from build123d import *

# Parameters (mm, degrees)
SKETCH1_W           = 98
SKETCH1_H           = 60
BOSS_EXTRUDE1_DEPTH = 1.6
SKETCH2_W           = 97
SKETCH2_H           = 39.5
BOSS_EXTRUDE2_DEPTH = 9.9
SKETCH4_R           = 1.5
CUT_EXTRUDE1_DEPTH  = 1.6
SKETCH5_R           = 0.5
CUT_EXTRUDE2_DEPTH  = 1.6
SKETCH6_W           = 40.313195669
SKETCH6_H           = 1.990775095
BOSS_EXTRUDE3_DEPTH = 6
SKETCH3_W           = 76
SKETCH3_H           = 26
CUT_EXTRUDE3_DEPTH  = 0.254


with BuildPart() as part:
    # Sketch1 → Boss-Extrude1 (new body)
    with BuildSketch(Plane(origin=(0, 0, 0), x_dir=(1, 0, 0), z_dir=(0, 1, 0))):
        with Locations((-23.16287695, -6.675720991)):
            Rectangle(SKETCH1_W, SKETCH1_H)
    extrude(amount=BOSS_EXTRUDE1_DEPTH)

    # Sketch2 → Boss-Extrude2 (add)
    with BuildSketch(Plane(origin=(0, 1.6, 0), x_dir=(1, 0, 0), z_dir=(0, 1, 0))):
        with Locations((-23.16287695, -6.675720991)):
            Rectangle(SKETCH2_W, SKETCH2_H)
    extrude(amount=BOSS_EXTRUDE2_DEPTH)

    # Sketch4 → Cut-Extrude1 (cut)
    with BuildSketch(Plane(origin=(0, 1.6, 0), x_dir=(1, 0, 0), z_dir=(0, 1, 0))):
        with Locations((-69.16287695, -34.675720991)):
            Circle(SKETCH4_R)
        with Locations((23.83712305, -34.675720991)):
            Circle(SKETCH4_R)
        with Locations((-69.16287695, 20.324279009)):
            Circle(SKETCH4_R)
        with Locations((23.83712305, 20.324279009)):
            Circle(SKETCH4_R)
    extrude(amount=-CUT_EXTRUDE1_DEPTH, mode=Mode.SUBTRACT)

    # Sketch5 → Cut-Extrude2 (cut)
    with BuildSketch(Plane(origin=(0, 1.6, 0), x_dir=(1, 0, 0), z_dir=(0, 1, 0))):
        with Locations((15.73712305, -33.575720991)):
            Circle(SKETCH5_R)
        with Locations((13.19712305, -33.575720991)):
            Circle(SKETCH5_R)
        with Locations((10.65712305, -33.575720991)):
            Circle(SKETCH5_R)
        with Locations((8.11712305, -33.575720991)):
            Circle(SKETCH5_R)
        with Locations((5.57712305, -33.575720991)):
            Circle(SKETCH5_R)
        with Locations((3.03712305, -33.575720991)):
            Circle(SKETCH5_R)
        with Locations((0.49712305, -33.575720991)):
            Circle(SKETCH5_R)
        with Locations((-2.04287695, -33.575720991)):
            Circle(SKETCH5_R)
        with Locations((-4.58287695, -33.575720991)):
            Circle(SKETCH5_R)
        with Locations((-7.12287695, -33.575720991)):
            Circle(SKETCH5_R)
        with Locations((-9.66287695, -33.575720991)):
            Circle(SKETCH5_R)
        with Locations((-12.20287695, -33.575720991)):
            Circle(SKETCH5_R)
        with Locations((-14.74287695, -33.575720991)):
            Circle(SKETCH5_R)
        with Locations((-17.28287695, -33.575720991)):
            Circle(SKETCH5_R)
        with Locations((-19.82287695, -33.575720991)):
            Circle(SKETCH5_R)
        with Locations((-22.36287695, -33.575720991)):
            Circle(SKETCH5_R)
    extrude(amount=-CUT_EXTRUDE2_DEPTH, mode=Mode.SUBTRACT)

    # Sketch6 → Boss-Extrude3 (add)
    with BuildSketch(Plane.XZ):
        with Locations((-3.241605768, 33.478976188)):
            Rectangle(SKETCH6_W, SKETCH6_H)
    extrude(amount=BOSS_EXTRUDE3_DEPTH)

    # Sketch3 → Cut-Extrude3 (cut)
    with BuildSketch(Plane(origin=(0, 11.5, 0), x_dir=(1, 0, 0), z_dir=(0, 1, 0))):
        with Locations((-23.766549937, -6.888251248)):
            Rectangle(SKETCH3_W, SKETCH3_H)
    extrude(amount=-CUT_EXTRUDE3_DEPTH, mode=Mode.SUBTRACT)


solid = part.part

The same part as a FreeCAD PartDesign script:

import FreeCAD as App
import Part
import Sketcher
from FreeCAD import Vector
Q = App.Units.Quantity

doc = App.newDocument("Part")
body = doc.addObject("PartDesign::Body", "Body")

# Sketch on XZ plane
sketch1 = body.newObject("Sketcher::SketchObject", "Sketch")
sketch1.AttachmentSupport = (doc.getObject("XZ_Plane"), [""])
sketch1.MapMode = "FlatFace"
sketch1.addGeometry(Part.LineSegment(Vector(-72, -23, 0), Vector(-72, 37, 0)), False)
sketch1.addGeometry(Part.LineSegment(Vector(-72, 37, 0), Vector(26, 37, 0)), False)
sketch1.addGeometry(Part.LineSegment(Vector(26, 37, 0), Vector(26, -23, 0)), False)
sketch1.addGeometry(Part.LineSegment(Vector(26, -23, 0), Vector(-72, -23, 0)), False)
sketch1.addConstraint(Sketcher.Constraint("Coincident", 0, 2, 1, 1))
sketch1.addConstraint(Sketcher.Constraint("Coincident", 1, 2, 2, 1))
sketch1.addConstraint(Sketcher.Constraint("Coincident", 2, 2, 3, 1))
sketch1.addConstraint(Sketcher.Constraint("Coincident", 3, 2, 0, 1))
sketch1.addConstraint(Sketcher.Constraint("Vertical", 0))
sketch1.addConstraint(Sketcher.Constraint("Horizontal", 1))
sketch1.addConstraint(Sketcher.Constraint("Vertical", 2))
sketch1.addConstraint(Sketcher.Constraint("Horizontal", 3))
sketch1.addConstraint(Sketcher.Constraint("DistanceX", 1, 1, 1, 2, Q("98 mm")))
sketch1.addConstraint(Sketcher.Constraint("DistanceY", 0, 1, 0, 2, Q("60 mm")))
sketch1.addConstraint(Sketcher.Constraint("DistanceY", -1, 1, 0, 2, Q("36.675721 mm")))
sketch1.addConstraint(Sketcher.Constraint("DistanceX", 0, 2, -1, 1, Q("72.162877 mm")))
pad1 = body.newObject("PartDesign::Pad", "Pad")
pad1.Profile = sketch1
pad1.Length = 1.6
pad1.Reversed = True

# Sketch on XZ plane
sketch2 = body.newObject("Sketcher::SketchObject", "Sketch001")
sketch2.AttachmentSupport = (doc.getObject("XZ_Plane"), [""])
sketch2.MapMode = "FlatFace"
sketch2.AttachmentOffset = App.Placement(Vector(0, 0, -1.6), App.Rotation())
sketch2.addGeometry(Part.LineSegment(Vector(-72, -13, 0), Vector(-72, 26, 0)), False)
sketch2.addGeometry(Part.LineSegment(Vector(-72, 26, 0), Vector(25, 26, 0)), False)
sketch2.addGeometry(Part.LineSegment(Vector(25, 26, 0), Vector(25, -13, 0)), False)
sketch2.addGeometry(Part.LineSegment(Vector(25, -13, 0), Vector(-72, -13, 0)), False)
sketch2.addConstraint(Sketcher.Constraint("Coincident", 0, 2, 1, 1))
sketch2.addConstraint(Sketcher.Constraint("Coincident", 1, 2, 2, 1))
sketch2.addConstraint(Sketcher.Constraint("Coincident", 2, 2, 3, 1))
sketch2.addConstraint(Sketcher.Constraint("Coincident", 3, 2, 0, 1))
sketch2.addConstraint(Sketcher.Constraint("Vertical", 0))
sketch2.addConstraint(Sketcher.Constraint("Horizontal", 1))
sketch2.addConstraint(Sketcher.Constraint("Vertical", 2))
sketch2.addConstraint(Sketcher.Constraint("Horizontal", 3))
sketch2.addConstraint(Sketcher.Constraint("DistanceX", 1, 1, 1, 2, Q("97 mm")))
sketch2.addConstraint(Sketcher.Constraint("DistanceY", 0, 1, 0, 2, Q("39.5 mm")))
sketch2.addConstraint(Sketcher.Constraint("DistanceY", -1, 1, 0, 2, Q("26.425721 mm")))
sketch2.addConstraint(Sketcher.Constraint("DistanceX", 0, 2, -1, 1, Q("71.662877 mm")))
pad2 = body.newObject("PartDesign::Pad", "Pad001")
pad2.Profile = sketch2
pad2.Length = 9.9
pad2.Reversed = True

# Sketch on XZ plane
sketch3 = body.newObject("Sketcher::SketchObject", "Sketch002")
sketch3.AttachmentSupport = (doc.getObject("XZ_Plane"), [""])
sketch3.MapMode = "FlatFace"
sketch3.AttachmentOffset = App.Placement(Vector(0, 0, -1.6), App.Rotation())
sketch3.addGeometry(Part.Circle(Vector(-69.2, 34.7, 0), Vector(0, 0, 1), 1.5), False)
sketch3.addGeometry(Part.Circle(Vector(23.8, 34.7, 0), Vector(0, 0, 1), 1.5), False)
sketch3.addGeometry(Part.Circle(Vector(-69.2, -20.3, 0), Vector(0, 0, 1), 1.5), False)
sketch3.addGeometry(Part.Circle(Vector(23.8, -20.3, 0), Vector(0, 0, 1), 1.5), False)
sketch3.addConstraint(Sketcher.Constraint("Equal", 0, 1))
sketch3.addConstraint(Sketcher.Constraint("Equal", 1, 2))
sketch3.addConstraint(Sketcher.Constraint("Equal", 2, 3))
sketch3.addConstraint(Sketcher.Constraint("Horizontal", 0, 3, 1, 3))
sketch3.addConstraint(Sketcher.Constraint("Horizontal", 2, 3, 3, 3))
sketch3.addConstraint(Sketcher.Constraint("Vertical", 0, 3, 2, 3))
sketch3.addConstraint(Sketcher.Constraint("Vertical", 1, 3, 3, 3))
sketch3.addConstraint(Sketcher.Constraint("Diameter", 0, Q("3 mm")))
sketch3.addConstraint(Sketcher.Constraint("DistanceX", 0, 3, 1, 3, Q("93 mm")))
sketch3.addConstraint(Sketcher.Constraint("DistanceY", 2, 3, 0, 3, Q("55 mm")))
sketch3.addConstraint(Sketcher.Constraint("DistanceY", -1, 1, 0, 3, Q("34.675721 mm")))
sketch3.addConstraint(Sketcher.Constraint("DistanceX", 0, 3, -1, 1, Q("69.162877 mm")))
pocket1 = body.newObject("PartDesign::Pocket", "Pocket")
pocket1.Profile = sketch3
pocket1.Length = 1.6
pocket1.Reversed = True

# Sketch on XZ plane
sketch4 = body.newObject("Sketcher::SketchObject", "Sketch003")
sketch4.AttachmentSupport = (doc.getObject("XZ_Plane"), [""])
sketch4.MapMode = "FlatFace"
sketch4.AttachmentOffset = App.Placement(Vector(0, 0, -1.6), App.Rotation())
sketch4.addGeometry(Part.Circle(Vector(15.7, 33.6, 0), Vector(0, 0, 1), 0.5), False)
sketch4.addGeometry(Part.Circle(Vector(13.2, 33.6, 0), Vector(0, 0, 1), 0.5), False)
sketch4.addGeometry(Part.Circle(Vector(10.7, 33.6, 0), Vector(0, 0, 1), 0.5), False)
sketch4.addGeometry(Part.Circle(Vector(8.1, 33.6, 0), Vector(0, 0, 1), 0.5), False)
sketch4.addGeometry(Part.Circle(Vector(5.6, 33.6, 0), Vector(0, 0, 1), 0.5), False)
sketch4.addGeometry(Part.Circle(Vector(3, 33.6, 0), Vector(0, 0, 1), 0.5), False)
sketch4.addGeometry(Part.Circle(Vector(0.5, 33.6, 0), Vector(0, 0, 1), 0.5), False)
sketch4.addGeometry(Part.Circle(Vector(-2, 33.6, 0), Vector(0, 0, 1), 0.5), False)
sketch4.addGeometry(Part.Circle(Vector(-4.6, 33.6, 0), Vector(0, 0, 1), 0.5), False)
sketch4.addGeometry(Part.Circle(Vector(-7.1, 33.6, 0), Vector(0, 0, 1), 0.5), False)
sketch4.addGeometry(Part.Circle(Vector(-9.7, 33.6, 0), Vector(0, 0, 1), 0.5), False)
sketch4.addGeometry(Part.Circle(Vector(-12.2, 33.6, 0), Vector(0, 0, 1), 0.5), False)
sketch4.addGeometry(Part.Circle(Vector(-14.7, 33.6, 0), Vector(0, 0, 1), 0.5), False)
sketch4.addGeometry(Part.Circle(Vector(-17.3, 33.6, 0), Vector(0, 0, 1), 0.5), False)
sketch4.addGeometry(Part.Circle(Vector(-19.8, 33.6, 0), Vector(0, 0, 1), 0.5), False)
sketch4.addGeometry(Part.Circle(Vector(-22.4, 33.6, 0), Vector(0, 0, 1), 0.5), False)
sketch4.addConstraint(Sketcher.Constraint("Equal", 0, 1))
sketch4.addConstraint(Sketcher.Constraint("Equal", 1, 2))
sketch4.addConstraint(Sketcher.Constraint("Equal", 2, 3))
sketch4.addConstraint(Sketcher.Constraint("Equal", 3, 4))
sketch4.addConstraint(Sketcher.Constraint("Equal", 4, 5))
sketch4.addConstraint(Sketcher.Constraint("Equal", 5, 6))
sketch4.addConstraint(Sketcher.Constraint("Equal", 6, 7))
sketch4.addConstraint(Sketcher.Constraint("Equal", 7, 8))
sketch4.addConstraint(Sketcher.Constraint("Equal", 8, 9))
sketch4.addConstraint(Sketcher.Constraint("Equal", 9, 10))
sketch4.addConstraint(Sketcher.Constraint("Equal", 10, 11))
sketch4.addConstraint(Sketcher.Constraint("Equal", 11, 12))
sketch4.addConstraint(Sketcher.Constraint("Equal", 12, 13))
sketch4.addConstraint(Sketcher.Constraint("Equal", 13, 14))
sketch4.addConstraint(Sketcher.Constraint("Equal", 14, 15))
sketch4.addConstraint(Sketcher.Constraint("Horizontal", 0, 3, 1, 3))
sketch4.addConstraint(Sketcher.Constraint("Horizontal", 1, 3, 2, 3))
sketch4.addConstraint(Sketcher.Constraint("Horizontal", 2, 3, 3, 3))
sketch4.addConstraint(Sketcher.Constraint("Horizontal", 3, 3, 4, 3))
sketch4.addConstraint(Sketcher.Constraint("Horizontal", 4, 3, 5, 3))
sketch4.addConstraint(Sketcher.Constraint("Horizontal", 5, 3, 6, 3))
sketch4.addConstraint(Sketcher.Constraint("Horizontal", 6, 3, 7, 3))
sketch4.addConstraint(Sketcher.Constraint("Horizontal", 7, 3, 8, 3))
sketch4.addConstraint(Sketcher.Constraint("Horizontal", 8, 3, 9, 3))
sketch4.addConstraint(Sketcher.Constraint("Horizontal", 9, 3, 10, 3))
sketch4.addConstraint(Sketcher.Constraint("Horizontal", 10, 3, 11, 3))
sketch4.addConstraint(Sketcher.Constraint("Horizontal", 11, 3, 12, 3))
sketch4.addConstraint(Sketcher.Constraint("Horizontal", 12, 3, 13, 3))
sketch4.addConstraint(Sketcher.Constraint("Horizontal", 13, 3, 14, 3))
sketch4.addConstraint(Sketcher.Constraint("Horizontal", 14, 3, 15, 3))
sketch4.addConstraint(Sketcher.Constraint("Diameter", 0, Q("1 mm")))
sketch4.addConstraint(Sketcher.Constraint("DistanceX", 5, 3, 0, 3, Q("12.7 mm")))
sketch4.addConstraint(Sketcher.Constraint("DistanceX", 6, 3, 1, 3, Q("12.7 mm")))
sketch4.addConstraint(Sketcher.Constraint("DistanceX", 7, 3, 2, 3, Q("12.7 mm")))
sketch4.addConstraint(Sketcher.Constraint("DistanceX", 8, 3, 3, 3, Q("12.7 mm")))
sketch4.addConstraint(Sketcher.Constraint("DistanceX", 9, 3, 4, 3, Q("12.7 mm")))
sketch4.addConstraint(Sketcher.Constraint("DistanceX", 10, 3, 5, 3, Q("12.7 mm")))
sketch4.addConstraint(Sketcher.Constraint("DistanceX", 11, 3, 6, 3, Q("12.7 mm")))
sketch4.addConstraint(Sketcher.Constraint("DistanceX", 12, 3, 7, 3, Q("12.7 mm")))
sketch4.addConstraint(Sketcher.Constraint("DistanceX", 13, 3, 8, 3, Q("12.7 mm")))
sketch4.addConstraint(Sketcher.Constraint("DistanceX", 14, 3, 9, 3, Q("12.7 mm")))
sketch4.addConstraint(Sketcher.Constraint("DistanceX", 15, 3, 10, 3, Q("12.7 mm")))
sketch4.addConstraint(Sketcher.Constraint("DistanceX", 1, 3, 0, 3, Q("2.54 mm")))
sketch4.addConstraint(Sketcher.Constraint("DistanceX", 2, 3, 1, 3, Q("2.54 mm")))
sketch4.addConstraint(Sketcher.Constraint("DistanceX", 3, 3, 2, 3, Q("2.54 mm")))
sketch4.addConstraint(Sketcher.Constraint("DistanceX", 4, 3, 3, 3, Q("2.54 mm")))
sketch4.addConstraint(Sketcher.Constraint("DistanceY", -1, 1, 0, 3, Q("33.575721 mm")))
sketch4.addConstraint(Sketcher.Constraint("DistanceX", -1, 1, 0, 3, Q("15.737123 mm")))
pocket2 = body.newObject("PartDesign::Pocket", "Pocket001")
pocket2.Profile = sketch4
pocket2.Length = 1.6
pocket2.Reversed = True

# Sketch on XZ plane
sketch5 = body.newObject("Sketcher::SketchObject", "Sketch004")
sketch5.AttachmentSupport = (doc.getObject("XZ_Plane"), [""])
sketch5.MapMode = "FlatFace"
sketch5.addGeometry(Part.LineSegment(Vector(-23.4, 34.5, 0), Vector(-23.4, 32.5, 0)), False)
sketch5.addGeometry(Part.LineSegment(Vector(-23.4, 32.5, 0), Vector(16.9, 32.5, 0)), False)
sketch5.addGeometry(Part.LineSegment(Vector(16.9, 32.5, 0), Vector(16.9, 34.5, 0)), False)
sketch5.addGeometry(Part.LineSegment(Vector(16.9, 34.5, 0), Vector(-23.4, 34.5, 0)), False)
sketch5.addConstraint(Sketcher.Constraint("Coincident", 0, 2, 1, 1))
sketch5.addConstraint(Sketcher.Constraint("Coincident", 1, 2, 2, 1))
sketch5.addConstraint(Sketcher.Constraint("Coincident", 2, 2, 3, 1))
sketch5.addConstraint(Sketcher.Constraint("Coincident", 3, 2, 0, 1))
sketch5.addConstraint(Sketcher.Constraint("Vertical", 0))
sketch5.addConstraint(Sketcher.Constraint("Horizontal", 1))
sketch5.addConstraint(Sketcher.Constraint("Vertical", 2))
sketch5.addConstraint(Sketcher.Constraint("Horizontal", 3))
sketch5.addConstraint(Sketcher.Constraint("DistanceX", 1, 1, 1, 2, Q("40.313196 mm")))
sketch5.addConstraint(Sketcher.Constraint("DistanceY", 0, 2, 0, 1, Q("1.990775 mm")))
sketch5.addConstraint(Sketcher.Constraint("DistanceY", -1, 1, 0, 2, Q("32.483589 mm")))
sketch5.addConstraint(Sketcher.Constraint("DistanceX", 0, 2, -1, 1, Q("23.398204 mm")))
pad3 = body.newObject("PartDesign::Pad", "Pad002")
pad3.Profile = sketch5
pad3.Length = 6

# Sketch on XZ plane
sketch6 = body.newObject("Sketcher::SketchObject", "Sketch005")
sketch6.AttachmentSupport = (doc.getObject("XZ_Plane"), [""])
sketch6.MapMode = "FlatFace"
sketch6.AttachmentOffset = App.Placement(Vector(0, 0, -11.5), App.Rotation())
sketch6.addGeometry(Part.LineSegment(Vector(-62, -6, 0), Vector(-62, 20, 0)), False)
sketch6.addGeometry(Part.LineSegment(Vector(-62, 20, 0), Vector(14, 20, 0)), False)
sketch6.addGeometry(Part.LineSegment(Vector(14, 20, 0), Vector(14, -6, 0)), False)
sketch6.addGeometry(Part.LineSegment(Vector(14, -6, 0), Vector(-62, -6, 0)), False)
sketch6.addConstraint(Sketcher.Constraint("Coincident", 0, 2, 1, 1))
sketch6.addConstraint(Sketcher.Constraint("Coincident", 1, 2, 2, 1))
sketch6.addConstraint(Sketcher.Constraint("Coincident", 2, 2, 3, 1))
sketch6.addConstraint(Sketcher.Constraint("Coincident", 3, 2, 0, 1))
sketch6.addConstraint(Sketcher.Constraint("Vertical", 0))
sketch6.addConstraint(Sketcher.Constraint("Horizontal", 1))
sketch6.addConstraint(Sketcher.Constraint("Vertical", 2))
sketch6.addConstraint(Sketcher.Constraint("Horizontal", 3))
sketch6.addConstraint(Sketcher.Constraint("DistanceX", 1, 1, 1, 2, Q("76 mm")))
sketch6.addConstraint(Sketcher.Constraint("DistanceY", 0, 1, 0, 2, Q("26 mm")))
sketch6.addConstraint(Sketcher.Constraint("DistanceX", 0, 2, -1, 1, Q("61.76655 mm")))
sketch6.addConstraint(Sketcher.Constraint("DistanceY", -1, 1, 0, 2, Q("19.888251 mm")))
pocket3 = body.newObject("PartDesign::Pocket", "Pocket002")
pocket3.Profile = sketch6
pocket3.Length = 0.254
pocket3.Reversed = True

doc.recompute()
